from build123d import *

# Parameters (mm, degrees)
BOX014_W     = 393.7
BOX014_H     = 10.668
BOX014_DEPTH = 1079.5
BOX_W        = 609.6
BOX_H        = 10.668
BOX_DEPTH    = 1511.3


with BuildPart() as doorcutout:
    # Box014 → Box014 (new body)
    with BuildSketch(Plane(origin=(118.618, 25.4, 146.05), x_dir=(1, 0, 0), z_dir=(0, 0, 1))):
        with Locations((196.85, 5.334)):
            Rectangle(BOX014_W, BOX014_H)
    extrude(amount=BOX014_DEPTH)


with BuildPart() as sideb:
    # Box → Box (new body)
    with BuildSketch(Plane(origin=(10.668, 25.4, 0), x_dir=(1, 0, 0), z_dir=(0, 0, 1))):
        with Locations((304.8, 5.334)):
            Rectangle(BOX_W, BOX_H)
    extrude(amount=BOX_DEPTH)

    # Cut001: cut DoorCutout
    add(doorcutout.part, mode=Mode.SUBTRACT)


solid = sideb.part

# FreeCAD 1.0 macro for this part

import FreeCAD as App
import Part
import Sketcher

V = App.Vector
Q = App.Units.Quantity

doc = App.newDocument("Part")
body = doc.addObject("PartDesign::Body", "Body")

# Sketch on XY plane
sketch1 = doc.addObject("Sketcher::SketchObject", "Sketch")
body.addObject(sketch1)
sketch1.AttachmentSupport = (doc.XY_Plane, [""])
sketch1.MapMode = "FlatFace"
sketch1.AttachmentOffset = App.Placement(V(0, 0, 5.75 * 25.4), App.Rotation())
sketch1.addGeometry([
    Part.LineSegment(V(118.618, 36.068, 0), V(118.618, 25.4, 0)),
    Part.LineSegment(V(118.618, 25.4, 0), V(512.318, 25.4, 0)),
    Part.LineSegment(V(512.318, 25.4, 0), V(512.318, 36.068, 0)),
    Part.LineSegment(V(512.318, 36.068, 0), V(118.618, 36.068, 0)),
], False)
sketch1.addConstraint([
    Sketcher.Constraint("Coincident", 0, 2, 1, 1),
    Sketcher.Constraint("Coincident", 1, 2, 2, 1),
    Sketcher.Constraint("Coincident", 2, 2, 3, 1),
    Sketcher.Constraint("Coincident", 3, 2, 0, 1),
    Sketcher.Constraint("Vertical", 0),
    Sketcher.Constraint("Horizontal", 1),
    Sketcher.Constraint("Vertical", 2),
    Sketcher.Constraint("Horizontal", 3),
    Sketcher.Constraint("DistanceX", 1, 1, 1, 2, Q("15.5 in")),
    Sketcher.Constraint("DistanceY", -1, 1, 0, 2, Q("1 in")),
    Sketcher.Constraint("DistanceY", 0, 2, 0, 1, Q("0.42 in")),
    Sketcher.Constraint("DistanceX", -1, 1, 0, 2, Q("4.67 in")),
])
pad1 = doc.addObject("PartDesign::Pad", "Pad")
body.addObject(pad1)
pad1.Profile = sketch1
pad1.Length = Q("42.5 in")
body2 = doc.addObject("PartDesign::Body", "Body001")

# Sketch on XY plane
sketch2 = doc.addObject("Sketcher::SketchObject", "Sketch001")
body2.addObject(sketch2)
sketch2.AttachmentSupport = (doc.getObject("XY_Plane001"), [""])
sketch2.MapMode = "FlatFace"
sketch2.addGeometry([
    Part.LineSegment(V(10.668, 36.068, 0), V(10.668, 25.4, 0)),
    Part.LineSegment(V(10.668, 25.4, 0), V(620.268, 25.4, 0)),
    Part.LineSegment(V(620.268, 25.4, 0), V(620.268, 36.068, 0)),
    Part.LineSegment(V(620.268, 36.068, 0), V(10.668, 36.068, 0)),
], False)
sketch2.addConstraint([
    Sketcher.Constraint("Coincident", 0, 2, 1, 1),
    Sketcher.Constraint("Coincident", 1, 2, 2, 1),
    Sketcher.Constraint("Coincident", 2, 2, 3, 1),
    Sketcher.Constraint("Coincident", 3, 2, 0, 1),
    Sketcher.Constraint("Vertical", 0),
    Sketcher.Constraint("Horizontal", 1),
    Sketcher.Constraint("Vertical", 2),
    Sketcher.Constraint("Horizontal", 3),
    Sketcher.Constraint("DistanceX", 1, 1, 1, 2, Q("24 in")),
    Sketcher.Constraint("DistanceY", -1, 1, 0, 2, Q("1 in")),
    Sketcher.Constraint("DistanceY", 0, 2, 0, 1, Q("0.42 in")),
    Sketcher.Constraint("DistanceX", -1, 1, 0, 2, Q("0.42 in")),
])
pad2 = doc.addObject("PartDesign::Pad", "Pad001")
body2.addObject(pad2)
pad2.Profile = sketch2
pad2.Length = Q("59.5 in")
doc.recompute()

boolean = doc.addObject("PartDesign::Boolean", "Boolean")
body2.addObject(boolean)
boolean.Type = "Cut"
boolean.addObjects([body])

doc.recompute()
